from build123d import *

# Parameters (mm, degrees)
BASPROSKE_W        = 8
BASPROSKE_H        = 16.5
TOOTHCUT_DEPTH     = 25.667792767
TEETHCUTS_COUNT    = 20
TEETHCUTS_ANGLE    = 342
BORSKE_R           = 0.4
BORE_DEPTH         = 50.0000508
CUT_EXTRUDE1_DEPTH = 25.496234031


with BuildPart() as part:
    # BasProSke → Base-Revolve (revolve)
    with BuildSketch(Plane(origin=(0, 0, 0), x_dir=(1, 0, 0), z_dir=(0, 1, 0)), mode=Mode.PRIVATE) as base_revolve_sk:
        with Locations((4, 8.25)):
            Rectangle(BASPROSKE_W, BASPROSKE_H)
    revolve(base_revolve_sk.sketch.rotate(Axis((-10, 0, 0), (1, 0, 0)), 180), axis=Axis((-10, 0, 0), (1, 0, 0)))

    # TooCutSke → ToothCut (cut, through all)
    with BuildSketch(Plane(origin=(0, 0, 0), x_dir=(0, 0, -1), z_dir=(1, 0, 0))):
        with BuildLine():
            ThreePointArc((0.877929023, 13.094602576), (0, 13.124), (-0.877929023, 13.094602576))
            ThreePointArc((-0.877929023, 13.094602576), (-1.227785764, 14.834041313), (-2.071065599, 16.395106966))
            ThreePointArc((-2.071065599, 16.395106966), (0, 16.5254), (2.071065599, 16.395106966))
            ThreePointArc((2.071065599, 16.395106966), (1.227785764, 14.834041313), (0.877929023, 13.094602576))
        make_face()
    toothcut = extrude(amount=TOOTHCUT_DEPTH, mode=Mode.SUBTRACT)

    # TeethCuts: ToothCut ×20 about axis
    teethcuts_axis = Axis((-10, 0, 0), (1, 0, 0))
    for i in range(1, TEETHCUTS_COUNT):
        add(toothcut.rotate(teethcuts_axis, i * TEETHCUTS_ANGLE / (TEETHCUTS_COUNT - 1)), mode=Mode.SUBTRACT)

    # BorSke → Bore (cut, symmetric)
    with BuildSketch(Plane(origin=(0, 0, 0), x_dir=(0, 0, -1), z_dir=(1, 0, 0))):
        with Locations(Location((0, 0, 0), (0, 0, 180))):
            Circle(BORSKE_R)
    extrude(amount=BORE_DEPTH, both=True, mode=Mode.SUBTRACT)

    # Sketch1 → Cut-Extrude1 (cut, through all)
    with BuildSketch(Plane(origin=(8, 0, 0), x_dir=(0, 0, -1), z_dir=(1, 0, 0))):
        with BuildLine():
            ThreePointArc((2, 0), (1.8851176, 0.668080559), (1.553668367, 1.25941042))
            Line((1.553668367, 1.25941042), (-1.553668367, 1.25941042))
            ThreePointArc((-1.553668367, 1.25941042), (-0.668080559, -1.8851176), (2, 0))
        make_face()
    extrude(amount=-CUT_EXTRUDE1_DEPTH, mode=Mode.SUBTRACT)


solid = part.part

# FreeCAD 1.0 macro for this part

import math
import FreeCAD as App
import Part
import Sketcher
Q = App.Units.Quantity

doc = App.newDocument("Part")
body = doc.addObject("PartDesign::Body", "Body")

sketch1 = doc.addObject("Sketcher::SketchObject", "Sketch")
body.addObject(sketch1)
sketch1.AttachmentSupport = (doc.XZ_Plane, [""])
sketch1.MapMode = "FlatFace"
sketch1.addGeometry([
    Part.LineSegment(App.Vector(0, -16, 0), App.Vector(0, 0, 0)),
    Part.LineSegment(App.Vector(0, 0, 0), App.Vector(8, 0, 0)),
    Part.LineSegment(App.Vector(8, 0, 0), App.Vector(8, -16, 0)),
    Part.LineSegment(App.Vector(8, -16, 0), App.Vector(0, -16, 0)),
], False)
sketch1.addConstraint([
    Sketcher.Constraint("Coincident", 0, 2, 1, 1),
    Sketcher.Constraint("Coincident", 1, 2, 2, 1),
    Sketcher.Constraint("Coincident", 2, 2, 3, 1),
    Sketcher.Constraint("Coincident", 3, 2, 0, 1),
    Sketcher.Constraint("Vertical", 0),
    Sketcher.Constraint("Horizontal", 1),
    Sketcher.Constraint("Vertical", 2),
    Sketcher.Constraint("Horizontal", 3),
    Sketcher.Constraint("Coincident", 0, 2, -1, 1),
    Sketcher.Constraint("DistanceX", 1, 1, 1, 2, Q("8 mm")),
    Sketcher.Constraint("DistanceY", 0, 1, 0, 2, Q("16.5 mm")),
])
revolution = doc.addObject("PartDesign::Revolution", "Revolution")
body.addObject(revolution)
revolution.Profile = sketch1
revolution.ReferenceAxis = (sketch1, ["H_Axis"])
revolution.Angle = 360

sketch2 = doc.addObject("Sketcher::SketchObject", "Sketch001")
body.addObject(sketch2)
sketch2.AttachmentSupport = (doc.YZ_Plane, [""])
sketch2.MapMode = "FlatFace"
sketch2.addGeometry([
    Part.ArcOfCircle(Part.Circle(App.Vector(0, 0, 0), App.Vector(0, 0, 1), 13.1), math.radians(-3.84), math.radians(3.84)),
    Part.ArcOfCircle(Part.Circle(App.Vector(12.8, -6.9, 0), App.Vector(0, 0, 1), 6), math.radians(53), math.radians(87)),
    Part.ArcOfCircle(Part.Circle(App.Vector(0, 0, 0), App.Vector(0, 0, 1), 16.5), math.radians(-7.2), math.radians(7.2)),
    Part.ArcOfCircle(Part.Circle(App.Vector(12.8, 6.9, 0), App.Vector(0, 0, 1), 6), math.radians(-87), math.radians(-53)),
], False)
sketch2.addConstraint([
    Sketcher.Constraint("Coincident", 0, 1, 1, 2),
    Sketcher.Constraint("Coincident", 1, 1, 2, 1),
    Sketcher.Constraint("Coincident", 2, 2, 3, 2),
    Sketcher.Constraint("Coincident", 3, 1, 0, 2),
    Sketcher.Constraint("Coincident", 0, 3, -1, 1),
    Sketcher.Constraint("Coincident", 2, 3, -1, 1),
    Sketcher.Constraint("Equal", 1, 3),
    Sketcher.Constraint("Symmetric", 1, 3, 3, 3, -1),
    Sketcher.Constraint("Radius", 1, Q("6 mm")),
    Sketcher.Constraint("Radius", 0, Q("13.124 mm")),
    Sketcher.Constraint("Radius", 2, Q("16.5254 mm")),
    Sketcher.Constraint("DistanceY", 0, 1, -1, 1, Q("0.877929 mm")),
    Sketcher.Constraint("DistanceY", 1, 3, 3, 3, Q("13.740811 mm")),
])
pocket1 = doc.addObject("PartDesign::Pocket", "Pocket")
body.addObject(pocket1)
pocket1.Profile = sketch2
pocket1.Type = "ThroughAll"
pocket1.Reversed = True
doc.recompute()

polarpattern = doc.addObject("PartDesign::PolarPattern", "PolarPattern")
body.addObject(polarpattern)
polarpattern.Originals = [pocket1]
polarpattern.Axis = (doc.X_Axis, [""])
polarpattern.Angle = 360
polarpattern.Occurrences = 20
body.Tip = polarpattern

sketch3 = doc.addObject("Sketcher::SketchObject", "Sketch002")
body.addObject(sketch3)
sketch3.AttachmentSupport = (doc.YZ_Plane, [""])
sketch3.MapMode = "FlatFace"
sketch3.addGeometry(Part.Circle(App.Vector(0, 0, 0), App.Vector(0, 0, 1), 0.4), False)
sketch3.addConstraint([
    Sketcher.Constraint("Coincident", 0, 3, -1, 1),
    Sketcher.Constraint("Diameter", 0, Q("0.8 mm")),
])
pocket2 = doc.addObject("PartDesign::Pocket", "Pocket001")
body.addObject(pocket2)
pocket2.Profile = sketch3
pocket2.Length = 100.000102
pocket2.Midplane = True

sketch4 = doc.addObject("Sketcher::SketchObject", "Sketch003")
body.addObject(sketch4)
sketch4.AttachmentSupport = (doc.YZ_Plane, [""])
sketch4.MapMode = "FlatFace"
sketch4.AttachmentOffset = App.Placement(App.Vector(0, 0, 8), App.Rotation())
sketch4.addGeometry([
    Part.ArcOfCircle(Part.Circle(App.Vector(0, 0, 0), App.Vector(0, 0, 1), 2), math.radians(-90), math.radians(-51)),
    Part.LineSegment(App.Vector(1.3, -1.6, 0), App.Vector(1.3, 1.6, 0)),
    Part.ArcOfCircle(Part.Circle(App.Vector(0, 0, 0), App.Vector(0, 0, 1), 2), math.radians(51), math.radians(270)),
], False)
sketch4.addConstraint([
    Sketcher.Constraint("Coincident", 0, 2, 1, 1),
    Sketcher.Constraint("Coincident", 1, 2, 2, 1),
    Sketcher.Constraint("Tangent", 2, 2, 0, 1),
    Sketcher.Constraint("Vertical", 1),
    Sketcher.Constraint("Coincident", 0, 3, -1, 1),
    Sketcher.Constraint("Equal", 0, 2),
    Sketcher.Constraint("PointOnObject", 2, 2, -2),
    Sketcher.Constraint("Radius", 0, Q("2 mm")),
    Sketcher.Constraint("DistanceY", 1, 1, 1, 2, Q("3.107337 mm")),
])
pocket3 = doc.addObject("PartDesign::Pocket", "Pocket002")
body.addObject(pocket3)
pocket3.Profile = sketch4
pocket3.Type = "ThroughAll"

doc.recompute()
